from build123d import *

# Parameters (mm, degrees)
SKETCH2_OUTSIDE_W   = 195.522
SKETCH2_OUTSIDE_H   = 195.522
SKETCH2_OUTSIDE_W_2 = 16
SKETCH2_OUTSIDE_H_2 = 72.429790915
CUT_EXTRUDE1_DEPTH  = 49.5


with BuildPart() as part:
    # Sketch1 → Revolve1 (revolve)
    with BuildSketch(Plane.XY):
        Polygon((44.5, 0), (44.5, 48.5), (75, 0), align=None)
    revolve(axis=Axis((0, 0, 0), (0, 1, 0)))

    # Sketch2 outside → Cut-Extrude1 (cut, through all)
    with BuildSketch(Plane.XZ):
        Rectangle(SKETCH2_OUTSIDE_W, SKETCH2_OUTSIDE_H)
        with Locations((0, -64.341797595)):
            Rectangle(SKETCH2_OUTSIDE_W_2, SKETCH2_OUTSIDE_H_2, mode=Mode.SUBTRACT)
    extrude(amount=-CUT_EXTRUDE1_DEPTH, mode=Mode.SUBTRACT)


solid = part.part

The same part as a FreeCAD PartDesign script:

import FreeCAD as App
import Part
import Sketcher
from FreeCAD import Vector


def add_polygon(sketch, points):
    """Adds a closed chain of lines whose ends are joined by coincident constraints."""
    first, n = sketch.GeometryCount, len(points)
    for a, b in zip(points, points[1:] + points[:1]):
        sketch.addGeometry(Part.LineSegment(App.Vector(*a, 0), App.Vector(*b, 0)), False)
    for i in range(n):
        sketch.addConstraint(Sketcher.Constraint("Coincident", first + i, 2, first + (i + 1) % n, 1))

doc = App.newDocument("Part")
params = doc.addObject("Spreadsheet::Sheet", "Params")
for row, (alias, value) in enumerate([
    ("sketch1_width", "30.5 mm"),
    ("sketch1_height", "48.5 mm"),
    ("revolution_angle", "360 deg"),
    ("sketch2_width", "16 mm"),
], start=1):
    params.set(f"A{row}", alias)
    params.set(f"B{row}", "=" + value)
    params.setAlias(f"B{row}", alias)

body = doc.addObject("PartDesign::Body", "Body")

sketch1 = body.newObject("Sketcher::SketchObject", "Sketch")
sketch1.AttachmentSupport = (doc.getObject("XY_Plane"), [""])
sketch1.MapMode = "FlatFace"
add_polygon(sketch1, [(44, 48), (44, 0), (75, 0)])
sketch1.addConstraint(Sketcher.Constraint("Vertical", 0))
sketch1.addConstraint(Sketcher.Constraint("Horizontal", 1))
sketch1.addConstraint(Sketcher.Constraint("PointOnObject", 0, 2, -1))
sketch1.addConstraint(Sketcher.Constraint("DistanceX", 1, 1, 1, 2, 30.5))
sketch1.addConstraint(Sketcher.Constraint("DistanceY", 0, 2, 0, 1, 48.5))
sketch1.addConstraint(Sketcher.Constraint("DistanceX", -1, 1, 1, 2, 75.0))
sketch1.setExpression("Constraints[6]", "Params.sketch1_width")
sketch1.setExpression("Constraints[7]", "Params.sketch1_height")
revolution = body.newObject("PartDesign::Revolution", "Revolution")
revolution.Profile = sketch1
revolution.ReferenceAxis = (sketch1, ["V_Axis"])
revolution.setExpression("Angle", "Params.revolution_angle")

sketch2 = body.newObject("Sketcher::SketchObject", "Sketch001")
sketch2.AttachmentSupport = (doc.getObject("XZ_Plane"), [""])
sketch2.MapMode = "FlatFace"
add_polygon(sketch2, [(-98, 98), (-98, -98), (-8, -98), (-8, -28), (8, -28), (8, -98), (98, -98), (98, 98)])
sketch2.addConstraint(Sketcher.Constraint("Vertical", 0))
sketch2.addConstraint(Sketcher.Constraint("Horizontal", 1))
sketch2.addConstraint(Sketcher.Constraint("Vertical", 2))
sketch2.addConstraint(Sketcher.Constraint("Horizontal", 3))
sketch2.addConstraint(Sketcher.Constraint("Vertical", 4))
sketch2.addConstraint(Sketcher.Constraint("Horizontal", 5))
sketch2.addConstraint(Sketcher.Constraint("Vertical", 6))
sketch2.addConstraint(Sketcher.Constraint("Horizontal", 7))
sketch2.addConstraint(Sketcher.Constraint("Symmetric", 0, 2, 6, 2, -1, 1))
sketch2.addConstraint(Sketcher.Constraint("Symmetric", 1, 2, 4, 2, -2))
sketch2.addConstraint(Sketcher.Constraint("Equal", 7, 0))
sketch2.addConstraint(Sketcher.Constraint("DistanceX", 3, 1, 3, 2, 16.0))
sketch2.addConstraint(Sketcher.Constraint("DistanceX", 1, 1, 1, 2, 89.761))
sketch2.addConstraint(Sketcher.Constraint("DistanceY", 2, 1, 2, 2, 69.634098))
sketch2.setExpression("Constraints[19]", "Params.sketch2_width")
pocket1 = body.newObject("PartDesign::Pocket", "Pocket")
pocket1.Profile = sketch2
pocket1.Type = "ThroughAll"

doc.recompute()
